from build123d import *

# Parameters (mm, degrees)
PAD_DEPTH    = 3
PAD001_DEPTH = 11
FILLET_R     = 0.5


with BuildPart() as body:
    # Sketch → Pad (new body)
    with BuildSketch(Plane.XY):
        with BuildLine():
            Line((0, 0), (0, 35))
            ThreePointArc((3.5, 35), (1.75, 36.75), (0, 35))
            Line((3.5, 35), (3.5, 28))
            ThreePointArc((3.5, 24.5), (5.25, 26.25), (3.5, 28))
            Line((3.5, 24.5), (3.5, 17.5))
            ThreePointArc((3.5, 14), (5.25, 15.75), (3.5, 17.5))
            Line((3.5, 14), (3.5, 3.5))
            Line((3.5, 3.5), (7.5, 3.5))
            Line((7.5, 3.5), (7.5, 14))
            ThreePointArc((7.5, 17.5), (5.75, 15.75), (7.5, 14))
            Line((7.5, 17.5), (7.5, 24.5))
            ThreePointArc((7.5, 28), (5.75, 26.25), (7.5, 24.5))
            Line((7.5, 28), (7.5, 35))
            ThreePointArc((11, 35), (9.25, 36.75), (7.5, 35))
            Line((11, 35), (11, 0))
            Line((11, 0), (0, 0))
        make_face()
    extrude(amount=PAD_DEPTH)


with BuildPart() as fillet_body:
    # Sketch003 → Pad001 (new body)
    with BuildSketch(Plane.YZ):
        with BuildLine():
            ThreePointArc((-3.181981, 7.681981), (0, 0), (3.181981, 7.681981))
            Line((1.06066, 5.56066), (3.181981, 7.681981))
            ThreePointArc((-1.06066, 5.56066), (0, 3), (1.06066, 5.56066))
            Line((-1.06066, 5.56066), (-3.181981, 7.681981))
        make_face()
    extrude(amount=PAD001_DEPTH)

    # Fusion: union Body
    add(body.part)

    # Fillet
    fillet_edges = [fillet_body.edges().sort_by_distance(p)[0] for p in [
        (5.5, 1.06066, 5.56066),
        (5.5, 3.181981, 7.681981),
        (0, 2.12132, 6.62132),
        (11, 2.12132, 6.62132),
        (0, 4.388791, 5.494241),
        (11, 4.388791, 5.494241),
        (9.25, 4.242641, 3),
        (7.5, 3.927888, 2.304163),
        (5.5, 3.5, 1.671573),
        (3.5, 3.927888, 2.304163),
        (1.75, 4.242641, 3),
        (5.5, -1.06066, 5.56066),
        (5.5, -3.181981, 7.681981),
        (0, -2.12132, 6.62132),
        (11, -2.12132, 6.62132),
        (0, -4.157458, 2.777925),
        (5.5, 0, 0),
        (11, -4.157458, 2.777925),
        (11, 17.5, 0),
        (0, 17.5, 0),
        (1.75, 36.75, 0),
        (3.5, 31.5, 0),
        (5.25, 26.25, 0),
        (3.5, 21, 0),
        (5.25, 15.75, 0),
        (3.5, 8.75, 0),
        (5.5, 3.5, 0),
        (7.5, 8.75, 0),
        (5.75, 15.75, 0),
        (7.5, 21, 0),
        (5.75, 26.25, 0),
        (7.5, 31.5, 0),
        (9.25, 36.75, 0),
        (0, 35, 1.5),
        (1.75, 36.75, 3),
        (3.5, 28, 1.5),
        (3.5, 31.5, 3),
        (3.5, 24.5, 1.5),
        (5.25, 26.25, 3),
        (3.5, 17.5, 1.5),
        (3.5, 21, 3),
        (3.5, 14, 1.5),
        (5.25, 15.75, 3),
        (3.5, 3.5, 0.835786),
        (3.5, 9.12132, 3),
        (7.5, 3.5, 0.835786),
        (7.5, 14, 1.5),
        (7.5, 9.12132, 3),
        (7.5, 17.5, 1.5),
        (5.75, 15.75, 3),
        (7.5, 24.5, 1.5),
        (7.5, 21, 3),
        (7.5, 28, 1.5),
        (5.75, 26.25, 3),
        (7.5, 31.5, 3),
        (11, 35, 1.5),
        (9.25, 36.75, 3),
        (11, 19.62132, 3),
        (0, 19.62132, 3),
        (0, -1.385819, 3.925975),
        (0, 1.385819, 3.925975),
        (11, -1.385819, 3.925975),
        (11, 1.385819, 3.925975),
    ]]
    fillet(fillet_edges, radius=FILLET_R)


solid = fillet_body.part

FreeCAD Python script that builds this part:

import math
import FreeCAD as App
import Part
import Sketcher

V = App.Vector
Q = App.Units.Quantity

doc = App.newDocument("Part")
body = doc.addObject("PartDesign::Body", "Body")

sketch1 = body.newObject("Sketcher::SketchObject", "Sketch")
sketch1.AttachmentSupport = (doc.getObject("XY_Plane"), [""])
sketch1.MapMode = "FlatFace"
sketch1.addGeometry(Part.LineSegment(V(0, 35, 0), V(0, 0, 0)), False)
sketch1.addGeometry(Part.LineSegment(V(0, 0, 0), V(11, 0, 0)), False)
sketch1.addGeometry(Part.LineSegment(V(11, 0, 0), V(11, 35, 0)), False)
sketch1.addGeometry(Part.ArcOfCircle(Part.Circle(V(9.25, 35, 0), V(0, 0, 1), 1.75), math.radians(0), math.radians(180)), False)
sketch1.addGeometry(Part.LineSegment(V(7.5, 35, 0), V(7.5, 28, 0)), False)
sketch1.addGeometry(Part.ArcOfCircle(Part.Circle(V(7.5, 26.25, 0), V(0, 0, 1), 1.75), math.radians(90), math.radians(270)), False)
sketch1.addGeometry(Part.LineSegment(V(7.5, 24.5, 0), V(7.5, 17.5, 0)), False)
sketch1.addGeometry(Part.ArcOfCircle(Part.Circle(V(7.5, 15.75, 0), V(0, 0, 1), 1.75), math.radians(90), math.radians(270)), False)
sketch1.addGeometry(Part.LineSegment(V(7.5, 14, 0), V(7.5, 3.5, 0)), False)
sketch1.addGeometry(Part.LineSegment(V(7.5, 3.5, 0), V(3.5, 3.5, 0)), False)
sketch1.addGeometry(Part.LineSegment(V(3.5, 3.5, 0), V(3.5, 14, 0)), False)
sketch1.addGeometry(Part.ArcOfCircle(Part.Circle(V(3.5, 15.75, 0), V(0, 0, 1), 1.75), math.radians(-90), math.radians(90)), False)
sketch1.addGeometry(Part.LineSegment(V(3.5, 17.5, 0), V(3.5, 24.5, 0)), False)
sketch1.addGeometry(Part.ArcOfCircle(Part.Circle(V(3.5, 26.25, 0), V(0, 0, 1), 1.75), math.radians(-90), math.radians(90)), False)
sketch1.addGeometry(Part.LineSegment(V(3.5, 28, 0), V(3.5, 35, 0)), False)
sketch1.addGeometry(Part.ArcOfCircle(Part.Circle(V(1.75, 35, 0), V(0, 0, 1), 1.75), math.radians(0), math.radians(180)), False)
sketch1.addConstraint(Sketcher.Constraint("Coincident", 0, 2, 1, 1))
sketch1.addConstraint(Sketcher.Constraint("Coincident", 1, 2, 2, 1))
sketch1.addConstraint(Sketcher.Constraint("Tangent", 2, 2, 3, 1))
sketch1.addConstraint(Sketcher.Constraint("Tangent", 3, 2, 4, 1))
sketch1.addConstraint(Sketcher.Constraint("Coincident", 4, 2, 5, 1))
sketch1.addConstraint(Sketcher.Constraint("Coincident", 5, 2, 6, 1))
sketch1.addConstraint(Sketcher.Constraint("Coincident", 6, 2, 7, 1))
sketch1.addConstraint(Sketcher.Constraint("Coincident", 7, 2, 8, 1))
sketch1.addConstraint(Sketcher.Constraint("Coincident", 8, 2, 9, 1))
sketch1.addConstraint(Sketcher.Constraint("Coincident", 9, 2, 10, 1))
sketch1.addConstraint(Sketcher.Constraint("Coincident", 10, 2, 11, 1))
sketch1.addConstraint(Sketcher.Constraint("Coincident", 11, 2, 12, 1))
sketch1.addConstraint(Sketcher.Constraint("Coincident", 12, 2, 13, 1))
sketch1.addConstraint(Sketcher.Constraint("Coincident", 13, 2, 14, 1))
sketch1.addConstraint(Sketcher.Constraint("Tangent", 14, 2, 15, 1))
sketch1.addConstraint(Sketcher.Constraint("Tangent", 15, 2, 0, 1))
sketch1.addConstraint(Sketcher.Constraint("Vertical", 0))
sketch1.addConstraint(Sketcher.Constraint("Horizontal", 1))
sketch1.addConstraint(Sketcher.Constraint("Vertical", 2))
sketch1.addConstraint(Sketcher.Constraint("Vertical", 4))
sketch1.addConstraint(Sketcher.Constraint("Vertical", 6))
sketch1.addConstraint(Sketcher.Constraint("Vertical", 8))
sketch1.addConstraint(Sketcher.Constraint("Horizontal", 9))
sketch1.addConstraint(Sketcher.Constraint("Vertical", 10))
sketch1.addConstraint(Sketcher.Constraint("Vertical", 12))
sketch1.addConstraint(Sketcher.Constraint("Vertical", 14))
sketch1.addConstraint(Sketcher.Constraint("Coincident", 0, 2, -1, 1))
sketch1.addConstraint(Sketcher.Constraint("Equal", 3, 5))
sketch1.addConstraint(Sketcher.Constraint("Equal", 5, 7))
sketch1.addConstraint(Sketcher.Constraint("Equal", 7, 11))
sketch1.addConstraint(Sketcher.Constraint("Equal", 11, 13))
sketch1.addConstraint(Sketcher.Constraint("Equal", 13, 15))
sketch1.addConstraint(Sketcher.Constraint("Horizontal", 7, 3, 11, 3))
sketch1.addConstraint(Sketcher.Constraint("Horizontal", 5, 3, 13, 3))
sketch1.addConstraint(Sketcher.Constraint("Horizontal", 3, 3, 15, 3))
sketch1.addConstraint(Sketcher.Constraint("Vertical", 5, 3, 7, 3))
sketch1.addConstraint(Sketcher.Constraint("Vertical", 11, 3, 13, 3))
sketch1.addConstraint(Sketcher.Constraint("Vertical", 7, 3, 3, 2))
sketch1.addConstraint(Sketcher.Constraint("Vertical", 4, 2, 5, 2))
sketch1.addConstraint(Sketcher.Constraint("Vertical", 6, 2, 7, 2))
sketch1.addConstraint(Sketcher.Constraint("Vertical", 13, 3, 9, 2))
sketch1.addConstraint(Sketcher.Constraint("Vertical", 10, 2, 11, 2))
sketch1.addConstraint(Sketcher.Constraint("Vertical", 12, 2, 13, 2))
sketch1.addConstraint(Sketcher.Constraint("Equal", 4, 6))
sketch1.addConstraint(Sketcher.Constraint("DistanceX", 1, 1, 1, 2, Q("11 mm")))
sketch1.addConstraint(Sketcher.Constraint("DistanceX", 9, 2, 9, 1, Q("4 mm")))
sketch1.addConstraint(Sketcher.Constraint("DistanceY", 0, 2, 0, 1, Q("35 mm")))
sketch1.addConstraint(Sketcher.Constraint("DistanceY", 4, 2, 4, 1, Q("7 mm")))
sketch1.addConstraint(Sketcher.Constraint("DistanceY", 8, 2, 8, 1, Q("10.5 mm")))
pad1 = body.newObject("PartDesign::Pad", "Pad")
pad1.Profile = sketch1
pad1.Length = 3
body2 = doc.addObject("PartDesign::Body", "Body001")

sketch2 = body2.newObject("Sketcher::SketchObject", "Sketch001")
sketch2.AttachmentSupport = (doc.getObject("YZ_Plane001"), [""])
sketch2.MapMode = "FlatFace"
sketch2.addGeometry(Part.ArcOfCircle(Part.Circle(V(0, 4.5, 0), V(0, 0, 1), 4.5), math.radians(135.000004), math.radians(404.999996)), False)
sketch2.addGeometry(Part.LineSegment(V(3.181981, 7.681981, 0), V(1.06066, 5.56066, 0)), False)
sketch2.addGeometry(Part.ArcOfCircle(Part.Circle(V(0, 4.5, 0), V(0, 0, 1), 1.5), math.radians(134.999996), math.radians(405.000004)), False)
sketch2.addGeometry(Part.LineSegment(V(-1.06066, 5.56066, 0), V(-3.181981, 7.681981, 0)), False)
sketch2.addConstraint(Sketcher.Constraint("Coincident", 0, 2, 1, 1))
sketch2.addConstraint(Sketcher.Constraint("Coincident", 1, 2, 2, 2))
sketch2.addConstraint(Sketcher.Constraint("Coincident", 2, 1, 3, 1))
sketch2.addConstraint(Sketcher.Constraint("Coincident", 3, 2, 0, 1))
sketch2.addConstraint(Sketcher.Constraint("Coincident", 2, 3, 0, 3))
sketch2.addConstraint(Sketcher.Constraint("Symmetric", 1, 2, 2, 1, -2))
sketch2.addConstraint(Sketcher.Constraint("Perpendicular", 1, 3))
sketch2.addConstraint(Sketcher.Constraint("Horizontal", 0, 2, 3, 2))
sketch2.addConstraint(Sketcher.Constraint("Radius", 0, Q("4.5 mm")))
sketch2.addConstraint(Sketcher.Constraint("Radius", 2, Q("1.5 mm")))
sketch2.addConstraint(Sketcher.Constraint("DistanceY", -1, 1, 0, 3, Q("4.5 mm")))
sketch2.addConstraint(Sketcher.Constraint("DistanceX", -1, 1, 0, 2, Q("3.181981 mm")))
pad2 = body2.newObject("PartDesign::Pad", "Pad001")
pad2.Profile = sketch2
pad2.Length = 11
doc.recompute()

boolean = body2.newObject("PartDesign::Boolean", "Boolean")
boolean.Type = "Fuse"
boolean.addObjects([body])
doc.recompute()

fillet = body2.newObject("PartDesign::Fillet", "Fillet")
fillet.Base = (boolean, ["Edge1"])
fillet.UseAllEdges = True
fillet.Radius = 0.5

doc.recompute()
